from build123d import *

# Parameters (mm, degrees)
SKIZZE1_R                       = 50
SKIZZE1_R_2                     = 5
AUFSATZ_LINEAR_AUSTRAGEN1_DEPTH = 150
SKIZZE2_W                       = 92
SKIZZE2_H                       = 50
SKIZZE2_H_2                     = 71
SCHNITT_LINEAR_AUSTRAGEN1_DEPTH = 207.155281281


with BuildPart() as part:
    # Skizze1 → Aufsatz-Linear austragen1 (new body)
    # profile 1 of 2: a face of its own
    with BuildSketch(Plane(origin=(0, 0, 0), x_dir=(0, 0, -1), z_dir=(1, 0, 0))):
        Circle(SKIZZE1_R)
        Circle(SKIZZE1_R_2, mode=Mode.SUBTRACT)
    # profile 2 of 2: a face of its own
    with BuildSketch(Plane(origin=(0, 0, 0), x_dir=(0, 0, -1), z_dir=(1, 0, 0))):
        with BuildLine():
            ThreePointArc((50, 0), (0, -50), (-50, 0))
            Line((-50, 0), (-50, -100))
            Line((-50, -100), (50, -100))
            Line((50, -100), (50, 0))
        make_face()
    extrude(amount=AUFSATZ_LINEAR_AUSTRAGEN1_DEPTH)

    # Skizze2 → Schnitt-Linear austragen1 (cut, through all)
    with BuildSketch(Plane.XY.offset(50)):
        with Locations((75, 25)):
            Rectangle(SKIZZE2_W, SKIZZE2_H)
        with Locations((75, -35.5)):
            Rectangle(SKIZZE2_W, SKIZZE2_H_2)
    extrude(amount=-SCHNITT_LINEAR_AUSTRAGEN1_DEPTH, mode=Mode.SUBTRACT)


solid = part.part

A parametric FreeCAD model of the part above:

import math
import FreeCAD as App
import Part
import Sketcher

V = App.Vector

doc = App.newDocument("Part")
params = doc.addObject("Spreadsheet::Sheet", "Params")
for row, (alias, value) in enumerate([
    ("sketch1_diameter", "10 mm"),
    ("sketch1_radius", "50 mm"),
    ("pad1_length", "150 mm"),
    ("sketch2_width", "92 mm"),
    ("sketch2_height", "121 mm"),
], start=1):
    params.set(f"A{row}", alias)
    params.set(f"B{row}", "=" + value)
    params.setAlias(f"B{row}", alias)

body = doc.addObject("PartDesign::Body", "Body")

# Sketch on YZ plane
sketch1 = body.newObject("Sketcher::SketchObject", "Sketch")
sketch1.AttachmentSupport = (doc.getObject("YZ_Plane"), [""])
sketch1.MapMode = "FlatFace"
sketch1.addGeometry([
    Part.ArcOfCircle(Part.Circle(V(0, 0, 0), V(0, 0, 1), 50), math.radians(-90), math.radians(90)),  # 0
    Part.LineSegment(V(0, 50, 0), V(-100, 50, 0)),  # 1
    Part.LineSegment(V(-100, 50, 0), V(-100, -50, 0)),  # 2
    Part.LineSegment(V(-100, -50, 0), V(0, -50, 0)),  # 3
    Part.Circle(V(0, 0, 0), V(0, 0, 1), 5),  # 4
], False)
sketch1.addConstraint([
    Sketcher.Constraint("Tangent", 0, 2, 1, 1),
    Sketcher.Constraint("Coincident", 1, 2, 2, 1),
    Sketcher.Constraint("Coincident", 2, 2, 3, 1),
    Sketcher.Constraint("Tangent", 3, 2, 0, 1),
    Sketcher.Constraint("Horizontal", 1),
    Sketcher.Constraint("Vertical", 2),
    Sketcher.Constraint("Horizontal", 3),
    Sketcher.Constraint("Coincident", 0, 3, -1, 1),
    Sketcher.Constraint("Coincident", 4, 3, -1, 1),
    Sketcher.Constraint("Equal", 3, 2),
    Sketcher.Constraint("Diameter", 4, 10.0),
    Sketcher.Constraint("Radius", 0, 50.0),
])
sketch1.setExpression("Constraints[10]", "Params.sketch1_diameter")
sketch1.setExpression("Constraints[11]", "Params.sketch1_radius")
pad1 = body.newObject("PartDesign::Pad", "Pad")
pad1.Profile = sketch1
pad1.setExpression("Length", "Params.pad1_length")

# Sketch on XY plane
sketch2 = body.newObject("Sketcher::SketchObject", "Sketch001")
sketch2.AttachmentSupport = (doc.getObject("XY_Plane"), [""])
sketch2.MapMode = "FlatFace"
sketch2.AttachmentOffset = App.Placement(V(0, 0, 50), App.Rotation())
sketch2.addGeometry([
    Part.LineSegment(V(29, 50, 0), V(29, -71, 0)),
    Part.LineSegment(V(29, -71, 0), V(121, -71, 0)),
    Part.LineSegment(V(121, -71, 0), V(121, 50, 0)),
    Part.LineSegment(V(121, 50, 0), V(29, 50, 0)),
], False)
sketch2.addConstraint([
    Sketcher.Constraint("Coincident", 0, 2, 1, 1),
    Sketcher.Constraint("Coincident", 1, 2, 2, 1),
    Sketcher.Constraint("Coincident", 2, 2, 3, 1),
    Sketcher.Constraint("Coincident", 3, 2, 0, 1),
    Sketcher.Constraint("Vertical", 0),
    Sketcher.Constraint("Horizontal", 1),
    Sketcher.Constraint("Vertical", 2),
    Sketcher.Constraint("Horizontal", 3),
    Sketcher.Constraint("DistanceX", 1, 1, 1, 2, 92.0),
    Sketcher.Constraint("DistanceY", 0, 2, 0, 1, 121.0),
    Sketcher.Constraint("DistanceX", -1, 1, 0, 2, 29.0),
    Sketcher.Constraint("DistanceY", 0, 2, -1, 1, 71.0),
])
sketch2.setExpression("Constraints[8]", "Params.sketch2_width")
sketch2.setExpression("Constraints[9]", "Params.sketch2_height")
pocket1 = body.newObject("PartDesign::Pocket", "Pocket")
pocket1.Profile = sketch2
pocket1.Type = "ThroughAll"

doc.recompute()
